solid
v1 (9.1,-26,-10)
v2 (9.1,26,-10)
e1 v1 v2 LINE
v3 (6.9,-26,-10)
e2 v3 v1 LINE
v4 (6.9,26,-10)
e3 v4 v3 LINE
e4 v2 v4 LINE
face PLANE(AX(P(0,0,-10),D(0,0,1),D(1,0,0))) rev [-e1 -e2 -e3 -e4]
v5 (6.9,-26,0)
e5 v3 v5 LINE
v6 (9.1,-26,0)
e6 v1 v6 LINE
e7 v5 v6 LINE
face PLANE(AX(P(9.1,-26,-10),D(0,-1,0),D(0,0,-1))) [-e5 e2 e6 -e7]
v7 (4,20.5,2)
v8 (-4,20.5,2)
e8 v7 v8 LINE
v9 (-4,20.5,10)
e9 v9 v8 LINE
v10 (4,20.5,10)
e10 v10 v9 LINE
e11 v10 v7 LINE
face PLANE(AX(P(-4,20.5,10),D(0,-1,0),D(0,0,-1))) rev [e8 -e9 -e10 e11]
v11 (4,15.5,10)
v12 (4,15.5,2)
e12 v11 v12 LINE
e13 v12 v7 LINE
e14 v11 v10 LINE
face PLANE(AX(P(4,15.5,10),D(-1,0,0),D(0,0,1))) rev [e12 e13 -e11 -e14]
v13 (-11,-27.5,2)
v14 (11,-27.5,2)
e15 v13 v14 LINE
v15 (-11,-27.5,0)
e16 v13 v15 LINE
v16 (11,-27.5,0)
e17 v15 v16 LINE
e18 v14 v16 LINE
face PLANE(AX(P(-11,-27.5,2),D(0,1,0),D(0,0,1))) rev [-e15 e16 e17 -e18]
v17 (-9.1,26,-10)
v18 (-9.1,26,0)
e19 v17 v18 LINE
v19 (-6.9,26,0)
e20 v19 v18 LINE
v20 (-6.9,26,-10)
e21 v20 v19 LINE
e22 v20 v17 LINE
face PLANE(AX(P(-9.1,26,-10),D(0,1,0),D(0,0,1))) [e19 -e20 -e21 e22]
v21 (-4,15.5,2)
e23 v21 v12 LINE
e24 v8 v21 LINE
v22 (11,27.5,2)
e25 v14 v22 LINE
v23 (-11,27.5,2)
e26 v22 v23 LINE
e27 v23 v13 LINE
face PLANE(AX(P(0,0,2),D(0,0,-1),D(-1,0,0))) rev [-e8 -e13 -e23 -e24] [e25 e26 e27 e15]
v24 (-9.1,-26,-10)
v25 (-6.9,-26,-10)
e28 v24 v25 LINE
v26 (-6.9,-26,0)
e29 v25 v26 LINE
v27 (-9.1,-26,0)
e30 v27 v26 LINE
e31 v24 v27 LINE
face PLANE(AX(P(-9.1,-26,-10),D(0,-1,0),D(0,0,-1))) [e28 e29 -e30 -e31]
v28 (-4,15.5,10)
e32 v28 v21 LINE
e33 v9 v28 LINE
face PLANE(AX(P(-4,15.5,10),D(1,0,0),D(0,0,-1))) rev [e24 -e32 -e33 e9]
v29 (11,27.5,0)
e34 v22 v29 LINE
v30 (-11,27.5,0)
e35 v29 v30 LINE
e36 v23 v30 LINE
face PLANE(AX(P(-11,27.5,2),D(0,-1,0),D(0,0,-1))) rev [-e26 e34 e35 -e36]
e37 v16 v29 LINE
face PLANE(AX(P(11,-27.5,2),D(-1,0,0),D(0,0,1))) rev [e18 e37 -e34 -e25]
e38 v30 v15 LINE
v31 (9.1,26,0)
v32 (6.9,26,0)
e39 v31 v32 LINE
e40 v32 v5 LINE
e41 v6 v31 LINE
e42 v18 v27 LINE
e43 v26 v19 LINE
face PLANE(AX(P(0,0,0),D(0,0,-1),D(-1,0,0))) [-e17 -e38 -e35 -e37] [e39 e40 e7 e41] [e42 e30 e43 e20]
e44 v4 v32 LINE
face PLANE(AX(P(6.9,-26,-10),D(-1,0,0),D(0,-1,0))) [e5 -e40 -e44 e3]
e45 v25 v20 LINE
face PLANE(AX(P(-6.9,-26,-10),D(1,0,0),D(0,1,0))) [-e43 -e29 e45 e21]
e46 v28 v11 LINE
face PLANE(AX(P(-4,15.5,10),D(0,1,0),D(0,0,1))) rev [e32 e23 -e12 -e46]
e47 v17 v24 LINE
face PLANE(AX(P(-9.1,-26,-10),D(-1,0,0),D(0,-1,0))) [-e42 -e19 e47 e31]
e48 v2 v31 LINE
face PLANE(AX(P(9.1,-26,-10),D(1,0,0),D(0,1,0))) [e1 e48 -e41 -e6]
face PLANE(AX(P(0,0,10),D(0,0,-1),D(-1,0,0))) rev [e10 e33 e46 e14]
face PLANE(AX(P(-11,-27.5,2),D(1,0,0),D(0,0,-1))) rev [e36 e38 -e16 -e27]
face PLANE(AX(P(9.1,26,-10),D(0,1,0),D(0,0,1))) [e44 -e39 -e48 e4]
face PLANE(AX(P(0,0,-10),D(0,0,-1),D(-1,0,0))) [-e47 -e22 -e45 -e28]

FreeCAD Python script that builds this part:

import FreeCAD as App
import Part
import Sketcher

V = App.Vector
Q = App.Units.Quantity


def add_polygon(sketch, points):
    """Adds a closed chain of lines whose ends are joined by coincident constraints."""
    first, n = sketch.GeometryCount, len(points)
    for a, b in zip(points, points[1:] + points[:1]):
        sketch.addGeometry(Part.LineSegment(App.Vector(*a, 0), App.Vector(*b, 0)), False)
    for i in range(n):
        sketch.addConstraint(Sketcher.Constraint("Coincident", first + i, 2, first + (i + 1) % n, 1))

doc = App.newDocument("Part")
params = doc.addObject("Spreadsheet::Sheet", "Params")
for row, (alias, value) in enumerate([
    ("sketch1_width", "22 mm"),
    ("sketch1_height", "55 mm"),
    ("pad1_length", "2 mm"),
    ("sketch2_height", "52 mm"),
    ("sketch2_width", "2.2 mm"),
    ("pad2_length", "10 mm"),
    ("sketch3_width", "8 mm"),
    ("sketch3_height", "5 mm"),
    ("pad3_length", "8 mm"),
], start=1):
    params.set(f"A{row}", alias)
    params.set(f"B{row}", "=" + value)
    params.setAlias(f"B{row}", alias)

body = doc.addObject("PartDesign::Body", "Body")

sketch1 = doc.addObject("Sketcher::SketchObject", "Sketch")
body.addObject(sketch1)
sketch1.AttachmentSupport = (doc.XY_Plane, [""])
sketch1.MapMode = "FlatFace"
add_polygon(sketch1, [(-11, 27.5), (-11, -27.5), (11, -27.5), (11, 27.5)])
sketch1.addConstraint(Sketcher.Constraint("Vertical", 0))
sketch1.addConstraint(Sketcher.Constraint("Horizontal", 1))
sketch1.addConstraint(Sketcher.Constraint("Vertical", 2))
sketch1.addConstraint(Sketcher.Constraint("Horizontal", 3))
sketch1.addConstraint(Sketcher.Constraint("Symmetric", 0, 2, 2, 2, -1, 1))
sketch1.addConstraint(Sketcher.Constraint("DistanceX", 1, 1, 1, 2, Q("22 mm")))
sketch1.addConstraint(Sketcher.Constraint("DistanceY", 0, 2, 0, 1, Q("55 mm")))
sketch1.setExpression("Constraints[9]", "Params.sketch1_width")
sketch1.setExpression("Constraints[10]", "Params.sketch1_height")
pad1 = doc.addObject("PartDesign::Pad", "Pad")
body.addObject(pad1)
pad1.Profile = sketch1
pad1.setExpression("Length", "Params.pad1_length")

sketch2 = doc.addObject("Sketcher::SketchObject", "Sketch001")
body.addObject(sketch2)
sketch2.AttachmentSupport = (doc.XY_Plane, [""])
sketch2.MapMode = "FlatFace"
add_polygon(sketch2, [(6.9, 26), (6.9, -26), (9.1, -26), (9.1, 26)])
add_polygon(sketch2, [(-9.1, 26), (-9.1, -26), (-6.9, -26), (-6.9, 26)])
sketch2.addConstraint(Sketcher.Constraint("Vertical", 0))
sketch2.addConstraint(Sketcher.Constraint("Horizontal", 1))
sketch2.addConstraint(Sketcher.Constraint("Vertical", 2))
sketch2.addConstraint(Sketcher.Constraint("Horizontal", 3))
sketch2.addConstraint(Sketcher.Constraint("Vertical", 4))
sketch2.addConstraint(Sketcher.Constraint("Horizontal", 5))
sketch2.addConstraint(Sketcher.Constraint("Vertical", 6))
sketch2.addConstraint(Sketcher.Constraint("Horizontal", 7))
sketch2.addConstraint(Sketcher.Constraint("Symmetric", 2, 2, 4, 2, -1, 1))
sketch2.addConstraint(Sketcher.Constraint("Symmetric", 0, 2, 6, 2, -1, 1))
sketch2.addConstraint(Sketcher.Constraint("Horizontal", 1, 2, 4, 2))
sketch2.addConstraint(Sketcher.Constraint("DistanceY", 0, 2, 0, 1, Q("52 mm")))
sketch2.addConstraint(Sketcher.Constraint("DistanceX", 1, 1, 1, 2, Q("2.2 mm")))
sketch2.addConstraint(Sketcher.Constraint("DistanceX", 4, 2, 0, 2, Q("16 mm")))
sketch2.setExpression("Constraints[19]", "Params.sketch2_height")
sketch2.setExpression("Constraints[20]", "Params.sketch2_width")
pad2 = doc.addObject("PartDesign::Pad", "Pad001")
body.addObject(pad2)
pad2.Profile = sketch2
pad2.setExpression("Length", "Params.pad2_length")
pad2.Reversed = True

sketch3 = doc.addObject("Sketcher::SketchObject", "Sketch002")
body.addObject(sketch3)
sketch3.AttachmentSupport = (doc.XY_Plane, [""])
sketch3.MapMode = "FlatFace"
sketch3.AttachmentOffset = App.Placement(V(0, 0, 2), App.Rotation())
add_polygon(sketch3, [(-4, 20.5), (-4, 15.5), (4, 15.5), (4, 20.5)])
sketch3.addConstraint(Sketcher.Constraint("Vertical", 0))
sketch3.addConstraint(Sketcher.Constraint("Horizontal", 1))
sketch3.addConstraint(Sketcher.Constraint("Vertical", 2))
sketch3.addConstraint(Sketcher.Constraint("Horizontal", 3))
sketch3.addConstraint(Sketcher.Constraint("DistanceX", 1, 1, 1, 2, Q("8 mm")))
sketch3.addConstraint(Sketcher.Constraint("DistanceY", 0, 2, 0, 1, Q("5 mm")))
sketch3.addConstraint(Sketcher.Constraint("DistanceX", 0, 2, -1, 1, Q("4 mm")))
sketch3.addConstraint(Sketcher.Constraint("DistanceY", -1, 1, 0, 2, Q("15.5 mm")))
sketch3.setExpression("Constraints[8]", "Params.sketch3_width")
sketch3.setExpression("Constraints[9]", "Params.sketch3_height")
pad3 = doc.addObject("PartDesign::Pad", "Pad002")
body.addObject(pad3)
pad3.Profile = sketch3
pad3.setExpression("Length", "Params.pad3_length")

doc.recompute()
